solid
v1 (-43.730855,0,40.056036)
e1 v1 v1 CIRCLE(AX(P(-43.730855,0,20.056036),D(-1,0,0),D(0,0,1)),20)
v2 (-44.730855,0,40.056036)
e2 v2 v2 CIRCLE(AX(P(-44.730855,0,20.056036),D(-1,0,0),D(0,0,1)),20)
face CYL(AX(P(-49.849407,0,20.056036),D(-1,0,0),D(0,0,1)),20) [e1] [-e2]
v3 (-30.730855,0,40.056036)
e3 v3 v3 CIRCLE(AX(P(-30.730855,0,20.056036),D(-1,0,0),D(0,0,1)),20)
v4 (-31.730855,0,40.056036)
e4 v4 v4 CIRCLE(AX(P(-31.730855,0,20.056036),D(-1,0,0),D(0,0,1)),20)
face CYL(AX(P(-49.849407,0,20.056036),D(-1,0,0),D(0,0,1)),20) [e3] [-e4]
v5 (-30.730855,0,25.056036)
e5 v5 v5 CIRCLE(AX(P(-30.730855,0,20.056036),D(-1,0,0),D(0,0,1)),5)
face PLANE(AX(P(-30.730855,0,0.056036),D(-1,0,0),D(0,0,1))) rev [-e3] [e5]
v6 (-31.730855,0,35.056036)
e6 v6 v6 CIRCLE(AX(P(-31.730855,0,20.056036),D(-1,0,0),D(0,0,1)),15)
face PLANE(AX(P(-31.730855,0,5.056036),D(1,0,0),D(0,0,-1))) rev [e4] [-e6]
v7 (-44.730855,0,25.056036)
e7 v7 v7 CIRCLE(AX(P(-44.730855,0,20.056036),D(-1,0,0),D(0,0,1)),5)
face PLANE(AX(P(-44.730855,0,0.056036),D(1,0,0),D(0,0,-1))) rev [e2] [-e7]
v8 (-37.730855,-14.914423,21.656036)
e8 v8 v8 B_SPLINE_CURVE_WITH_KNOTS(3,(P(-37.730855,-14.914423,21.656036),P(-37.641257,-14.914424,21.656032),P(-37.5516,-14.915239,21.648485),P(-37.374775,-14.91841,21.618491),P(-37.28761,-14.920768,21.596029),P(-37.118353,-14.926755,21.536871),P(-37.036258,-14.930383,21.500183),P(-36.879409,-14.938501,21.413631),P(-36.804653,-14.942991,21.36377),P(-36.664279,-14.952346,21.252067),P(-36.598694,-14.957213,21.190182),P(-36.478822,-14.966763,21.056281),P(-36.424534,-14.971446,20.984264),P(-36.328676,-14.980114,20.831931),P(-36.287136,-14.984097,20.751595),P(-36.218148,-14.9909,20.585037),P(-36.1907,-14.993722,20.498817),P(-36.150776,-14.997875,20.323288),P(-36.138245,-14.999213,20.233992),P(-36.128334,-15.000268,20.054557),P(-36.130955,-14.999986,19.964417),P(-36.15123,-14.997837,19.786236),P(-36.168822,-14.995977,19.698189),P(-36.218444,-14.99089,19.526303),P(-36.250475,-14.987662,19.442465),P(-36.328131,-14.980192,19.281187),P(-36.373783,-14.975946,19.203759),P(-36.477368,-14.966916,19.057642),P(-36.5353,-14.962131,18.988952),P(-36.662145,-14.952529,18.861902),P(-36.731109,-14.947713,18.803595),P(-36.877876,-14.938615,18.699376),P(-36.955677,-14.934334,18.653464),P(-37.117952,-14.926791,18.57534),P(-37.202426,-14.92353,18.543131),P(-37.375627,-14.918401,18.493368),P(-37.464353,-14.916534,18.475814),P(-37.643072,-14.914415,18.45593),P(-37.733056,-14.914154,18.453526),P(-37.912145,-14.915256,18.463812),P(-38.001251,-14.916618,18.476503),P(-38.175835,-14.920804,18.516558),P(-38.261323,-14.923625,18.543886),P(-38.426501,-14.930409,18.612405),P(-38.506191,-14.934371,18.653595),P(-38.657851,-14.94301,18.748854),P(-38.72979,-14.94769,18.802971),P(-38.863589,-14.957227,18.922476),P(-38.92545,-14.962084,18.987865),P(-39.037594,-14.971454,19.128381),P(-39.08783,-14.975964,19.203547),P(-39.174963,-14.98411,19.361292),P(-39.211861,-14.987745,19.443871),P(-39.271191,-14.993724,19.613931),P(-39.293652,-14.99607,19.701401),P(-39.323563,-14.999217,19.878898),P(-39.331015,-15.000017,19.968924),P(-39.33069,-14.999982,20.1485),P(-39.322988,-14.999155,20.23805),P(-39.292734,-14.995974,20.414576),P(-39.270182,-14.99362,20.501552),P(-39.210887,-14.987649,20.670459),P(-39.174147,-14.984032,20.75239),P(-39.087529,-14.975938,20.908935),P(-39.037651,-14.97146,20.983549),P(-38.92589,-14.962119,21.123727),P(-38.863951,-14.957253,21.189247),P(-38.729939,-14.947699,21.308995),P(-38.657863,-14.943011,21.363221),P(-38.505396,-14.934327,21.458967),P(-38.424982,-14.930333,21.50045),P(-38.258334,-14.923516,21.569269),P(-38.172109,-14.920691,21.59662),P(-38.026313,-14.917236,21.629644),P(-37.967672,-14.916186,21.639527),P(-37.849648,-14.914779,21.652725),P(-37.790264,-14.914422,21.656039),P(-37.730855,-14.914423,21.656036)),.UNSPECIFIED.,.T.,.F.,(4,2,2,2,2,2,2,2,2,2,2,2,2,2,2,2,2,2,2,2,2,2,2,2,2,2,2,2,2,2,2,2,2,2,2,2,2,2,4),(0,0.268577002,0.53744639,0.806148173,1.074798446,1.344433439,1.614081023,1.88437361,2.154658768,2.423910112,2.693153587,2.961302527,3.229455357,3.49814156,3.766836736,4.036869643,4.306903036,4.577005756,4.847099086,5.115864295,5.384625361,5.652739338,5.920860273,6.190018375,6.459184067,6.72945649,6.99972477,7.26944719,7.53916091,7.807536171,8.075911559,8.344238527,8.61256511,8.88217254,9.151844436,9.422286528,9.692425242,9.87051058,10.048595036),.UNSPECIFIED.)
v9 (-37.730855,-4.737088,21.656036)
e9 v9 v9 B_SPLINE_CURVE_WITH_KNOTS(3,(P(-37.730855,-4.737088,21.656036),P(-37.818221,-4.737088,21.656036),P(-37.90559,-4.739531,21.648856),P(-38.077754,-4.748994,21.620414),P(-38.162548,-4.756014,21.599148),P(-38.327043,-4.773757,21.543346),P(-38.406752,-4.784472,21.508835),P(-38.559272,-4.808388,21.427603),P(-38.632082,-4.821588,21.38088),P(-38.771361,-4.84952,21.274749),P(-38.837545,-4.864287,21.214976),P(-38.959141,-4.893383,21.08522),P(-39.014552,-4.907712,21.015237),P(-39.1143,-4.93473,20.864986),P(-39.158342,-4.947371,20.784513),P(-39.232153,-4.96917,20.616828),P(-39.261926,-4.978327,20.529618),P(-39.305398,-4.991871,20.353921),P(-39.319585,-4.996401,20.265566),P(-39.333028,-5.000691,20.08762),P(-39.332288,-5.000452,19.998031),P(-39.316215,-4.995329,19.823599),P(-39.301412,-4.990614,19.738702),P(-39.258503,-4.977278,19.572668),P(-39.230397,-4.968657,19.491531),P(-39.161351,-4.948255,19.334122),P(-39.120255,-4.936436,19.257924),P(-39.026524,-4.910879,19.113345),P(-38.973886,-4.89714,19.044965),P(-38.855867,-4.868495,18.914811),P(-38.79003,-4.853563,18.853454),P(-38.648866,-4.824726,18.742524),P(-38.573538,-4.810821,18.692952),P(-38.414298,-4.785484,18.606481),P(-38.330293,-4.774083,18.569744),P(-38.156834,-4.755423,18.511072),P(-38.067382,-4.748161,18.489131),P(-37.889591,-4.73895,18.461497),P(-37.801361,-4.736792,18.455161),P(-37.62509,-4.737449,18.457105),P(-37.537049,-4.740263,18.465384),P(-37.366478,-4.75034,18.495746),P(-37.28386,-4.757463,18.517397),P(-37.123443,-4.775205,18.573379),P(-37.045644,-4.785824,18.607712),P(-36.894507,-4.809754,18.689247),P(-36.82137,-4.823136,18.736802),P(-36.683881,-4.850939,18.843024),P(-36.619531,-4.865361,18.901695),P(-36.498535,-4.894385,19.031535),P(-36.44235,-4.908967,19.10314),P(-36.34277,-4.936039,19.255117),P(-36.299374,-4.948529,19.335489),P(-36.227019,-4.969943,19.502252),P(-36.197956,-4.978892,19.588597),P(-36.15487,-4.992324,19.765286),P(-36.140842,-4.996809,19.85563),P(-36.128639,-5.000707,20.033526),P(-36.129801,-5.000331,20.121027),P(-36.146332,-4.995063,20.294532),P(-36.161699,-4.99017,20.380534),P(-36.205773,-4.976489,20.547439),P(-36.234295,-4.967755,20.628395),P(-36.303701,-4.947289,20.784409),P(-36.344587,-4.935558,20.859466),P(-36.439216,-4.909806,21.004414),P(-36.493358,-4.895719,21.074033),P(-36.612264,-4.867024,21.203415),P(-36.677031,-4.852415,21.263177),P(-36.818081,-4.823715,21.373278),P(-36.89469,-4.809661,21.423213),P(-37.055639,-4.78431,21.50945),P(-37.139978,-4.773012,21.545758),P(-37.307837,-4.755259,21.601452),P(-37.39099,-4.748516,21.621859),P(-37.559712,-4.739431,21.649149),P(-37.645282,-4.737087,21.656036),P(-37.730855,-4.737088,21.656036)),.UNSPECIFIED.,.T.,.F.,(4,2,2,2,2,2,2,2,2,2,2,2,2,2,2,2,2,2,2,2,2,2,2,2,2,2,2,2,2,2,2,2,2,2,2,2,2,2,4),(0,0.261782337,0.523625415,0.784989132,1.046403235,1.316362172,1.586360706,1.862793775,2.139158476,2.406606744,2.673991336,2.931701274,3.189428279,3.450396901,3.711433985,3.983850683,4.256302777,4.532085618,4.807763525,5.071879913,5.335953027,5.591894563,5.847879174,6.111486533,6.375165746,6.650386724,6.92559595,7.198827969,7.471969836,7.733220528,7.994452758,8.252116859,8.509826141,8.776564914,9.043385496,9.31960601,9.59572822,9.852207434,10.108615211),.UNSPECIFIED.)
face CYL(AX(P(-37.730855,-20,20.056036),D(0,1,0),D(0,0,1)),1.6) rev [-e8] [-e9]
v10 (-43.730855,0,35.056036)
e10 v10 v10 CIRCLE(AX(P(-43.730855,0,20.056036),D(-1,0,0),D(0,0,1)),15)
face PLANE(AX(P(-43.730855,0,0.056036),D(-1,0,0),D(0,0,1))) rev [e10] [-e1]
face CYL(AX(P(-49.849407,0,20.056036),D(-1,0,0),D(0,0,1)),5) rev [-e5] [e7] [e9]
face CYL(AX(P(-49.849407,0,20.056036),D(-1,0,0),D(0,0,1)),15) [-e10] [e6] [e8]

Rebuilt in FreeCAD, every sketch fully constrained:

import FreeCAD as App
import Part
import Sketcher

V = App.Vector


def add_polygon(sketch, points):
    """Adds a closed chain of lines whose ends are joined by coincident constraints."""
    first, n = sketch.GeometryCount, len(points)
    for a, b in zip(points, points[1:] + points[:1]):
        sketch.addGeometry(Part.LineSegment(App.Vector(*a, 0), App.Vector(*b, 0)), False)
    for i in range(n):
        sketch.addConstraint(Sketcher.Constraint("Coincident", first + i, 2, first + (i + 1) % n, 1))

doc = App.newDocument("Part")
body = doc.addObject("PartDesign::Body", "Body")

# Sketch on XZ plane
sketch1 = doc.addObject("Sketcher::SketchObject", "Sketch")
body.addObject(sketch1)
sketch1.AttachmentSupport = (doc.XZ_Plane, [""])
sketch1.MapMode = "FlatFace"
add_polygon(sketch1, [(-44.7, 0.1), (-44.7, 15.1), (-30.7, 15.1), (-30.7, 0.1), (-31.7, 0.1), (-31.7, 5.1), (-43.7, 5.1), (-43.7, 0.1)])  # lines 0-7
sketch1.addGeometry(Part.LineSegment(V(-44.7, 20.1, 0), V(-30.7, 20.1, 0)), True)  # axis
sketch1.addConstraint(Sketcher.Constraint("Vertical", 0))
sketch1.addConstraint(Sketcher.Constraint("Horizontal", 1))
sketch1.addConstraint(Sketcher.Constraint("Vertical", 2))
sketch1.addConstraint(Sketcher.Constraint("Horizontal", 3))
sketch1.addConstraint(Sketcher.Constraint("Vertical", 4))
sketch1.addConstraint(Sketcher.Constraint("Horizontal", 5))
sketch1.addConstraint(Sketcher.Constraint("Vertical", 6))
sketch1.addConstraint(Sketcher.Constraint("Horizontal", 7))
sketch1.addConstraint(Sketcher.Constraint("Horizontal", 8))
sketch1.addConstraint(Sketcher.Constraint("Horizontal", 3, 2, 6, 2))
sketch1.addConstraint(Sketcher.Constraint("Vertical", 7, 2, 8, 1))
sketch1.addConstraint(Sketcher.Constraint("Vertical", 2, 2, 8, 2))
sketch1.addConstraint(Sketcher.Constraint("Equal", 3, 7))
sketch1.addConstraint(Sketcher.Constraint("DistanceX", 1, 1, 1, 2, 14.0))
sketch1.addConstraint(Sketcher.Constraint("DistanceX", 3, 2, 3, 1, 1.0))
sketch1.addConstraint(Sketcher.Constraint("DistanceY", 0, 1, 0, 2, 15.0))
sketch1.addConstraint(Sketcher.Constraint("DistanceY", 4, 1, 4, 2, 5.0))
sketch1.addConstraint(Sketcher.Constraint("DistanceY", 0, 2, 8, 1, 5.0))
sketch1.addConstraint(Sketcher.Constraint("DistanceX", 0, 2, -1, 1, 44.730855))
sketch1.addConstraint(Sketcher.Constraint("DistanceY", -1, 1, 0, 2, 15.056036))
revolution = doc.addObject("PartDesign::Revolution", "Revolution")
body.addObject(revolution)
revolution.Profile = sketch1
revolution.ReferenceAxis = (sketch1, ["Axis0"])
revolution.Angle = 360

# Sketch on XZ plane
sketch2 = doc.addObject("Sketcher::SketchObject", "Sketch001")
body.addObject(sketch2)
sketch2.AttachmentSupport = (doc.XZ_Plane, [""])
sketch2.MapMode = "FlatFace"
sketch2.addGeometry(Part.Circle(V(-37.7, 20.1, 0), V(0, 0, 1), 1.6), False)
sketch2.addConstraint(Sketcher.Constraint("Diameter", 0, 3.2))
sketch2.addConstraint(Sketcher.Constraint("DistanceX", 0, 3, -1, 1, 37.730855))
sketch2.addConstraint(Sketcher.Constraint("DistanceY", -1, 1, 0, 3, 20.056036))
pocket1 = doc.addObject("PartDesign::Pocket", "Pocket")
body.addObject(pocket1)
pocket1.Profile = sketch2
pocket1.Type = "ThroughAll"
pocket1.Reversed = True

doc.recompute()
